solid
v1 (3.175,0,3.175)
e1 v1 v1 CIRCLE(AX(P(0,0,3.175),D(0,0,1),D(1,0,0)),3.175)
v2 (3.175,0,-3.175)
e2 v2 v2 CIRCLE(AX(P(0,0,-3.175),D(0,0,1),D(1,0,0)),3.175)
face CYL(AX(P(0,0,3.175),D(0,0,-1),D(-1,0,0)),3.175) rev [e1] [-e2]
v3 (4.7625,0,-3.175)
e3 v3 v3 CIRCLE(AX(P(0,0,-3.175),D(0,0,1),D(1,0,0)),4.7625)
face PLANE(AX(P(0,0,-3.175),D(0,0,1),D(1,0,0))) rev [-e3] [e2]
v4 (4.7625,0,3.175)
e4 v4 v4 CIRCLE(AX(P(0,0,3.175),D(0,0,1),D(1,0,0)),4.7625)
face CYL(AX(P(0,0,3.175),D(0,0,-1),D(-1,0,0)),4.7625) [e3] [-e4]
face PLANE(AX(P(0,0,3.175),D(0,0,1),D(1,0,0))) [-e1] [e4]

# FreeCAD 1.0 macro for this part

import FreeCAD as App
import Part
import Sketcher

V = App.Vector
Q = App.Units.Quantity

doc = App.newDocument("Part")
params = doc.addObject("Spreadsheet::Sheet", "Params")
for row, (alias, value) in enumerate([
    ("sketch1_diameter", "0.25 in"),
    ("sketch1_diameter2", "0.375 in"),
    ("pad1_length", "0.25 in"),
], start=1):
    params.set(f"A{row}", alias)
    params.set(f"B{row}", "=" + value)
    params.setAlias(f"B{row}", alias)

body = doc.addObject("PartDesign::Body", "Body")

sketch1 = body.newObject("Sketcher::SketchObject", "Sketch")
sketch1.AttachmentSupport = (doc.getObject("XY_Plane"), [""])
sketch1.MapMode = "FlatFace"
sketch1.addGeometry(Part.Circle(V(0, 0, 0), V(0, 0, 1), 4.8), False)
sketch1.addGeometry(Part.Circle(V(0, 0, 0), V(0, 0, 1), 3.2), False)
sketch1.addConstraint(Sketcher.Constraint("Coincident", 0, 3, -1, 1))
sketch1.addConstraint(Sketcher.Constraint("Coincident", 1, 3, -1, 1))
sketch1.addConstraint(Sketcher.Constraint("Diameter", 1, Q("0.25 in")))
sketch1.addConstraint(Sketcher.Constraint("Diameter", 0, Q("0.375 in")))
sketch1.setExpression("Constraints[2]", "Params.sketch1_diameter")
sketch1.setExpression("Constraints[3]", "Params.sketch1_diameter2")
pad1 = body.newObject("PartDesign::Pad", "Pad")
pad1.Profile = sketch1
pad1.setExpression("Length", "Params.pad1_length")
pad1.Midplane = True

doc.recompute()
